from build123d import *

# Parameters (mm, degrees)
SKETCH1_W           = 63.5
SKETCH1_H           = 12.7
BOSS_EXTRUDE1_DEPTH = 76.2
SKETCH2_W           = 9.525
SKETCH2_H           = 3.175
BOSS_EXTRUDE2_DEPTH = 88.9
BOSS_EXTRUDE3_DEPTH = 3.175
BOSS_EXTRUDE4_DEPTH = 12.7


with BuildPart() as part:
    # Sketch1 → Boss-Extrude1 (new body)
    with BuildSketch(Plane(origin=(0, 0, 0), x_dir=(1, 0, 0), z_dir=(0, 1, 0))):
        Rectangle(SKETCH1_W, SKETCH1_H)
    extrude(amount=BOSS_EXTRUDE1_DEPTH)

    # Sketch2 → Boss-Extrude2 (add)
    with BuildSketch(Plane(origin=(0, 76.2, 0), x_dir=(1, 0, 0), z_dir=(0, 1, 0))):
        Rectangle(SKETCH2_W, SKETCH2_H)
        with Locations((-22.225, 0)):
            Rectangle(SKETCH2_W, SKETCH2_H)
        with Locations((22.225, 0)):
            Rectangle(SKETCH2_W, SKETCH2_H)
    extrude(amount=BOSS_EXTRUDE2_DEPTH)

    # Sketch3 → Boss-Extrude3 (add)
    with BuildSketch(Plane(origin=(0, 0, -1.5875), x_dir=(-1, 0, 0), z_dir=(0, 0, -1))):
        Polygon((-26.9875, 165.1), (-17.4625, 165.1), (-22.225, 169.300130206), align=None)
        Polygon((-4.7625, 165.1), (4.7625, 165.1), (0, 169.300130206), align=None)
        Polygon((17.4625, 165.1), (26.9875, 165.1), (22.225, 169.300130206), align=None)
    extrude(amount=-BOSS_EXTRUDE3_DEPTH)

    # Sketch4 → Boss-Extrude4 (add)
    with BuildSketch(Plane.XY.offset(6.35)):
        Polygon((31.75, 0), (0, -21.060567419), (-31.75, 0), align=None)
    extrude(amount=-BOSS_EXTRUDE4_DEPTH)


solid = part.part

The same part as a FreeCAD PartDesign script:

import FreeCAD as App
import Part
import Sketcher
from FreeCAD import Vector
Q = App.Units.Quantity


def add_polygon(sketch, points):
    """Adds a closed chain of lines whose ends are joined by coincident constraints."""
    first, n = sketch.GeometryCount, len(points)
    for a, b in zip(points, points[1:] + points[:1]):
        sketch.addGeometry(Part.LineSegment(App.Vector(*a, 0), App.Vector(*b, 0)), False)
    for i in range(n):
        sketch.addConstraint(Sketcher.Constraint("Coincident", first + i, 2, first + (i + 1) % n, 1))

doc = App.newDocument("Part")
body = doc.addObject("PartDesign::Body", "Body")

# Sketch on XZ plane
sketch1 = body.newObject("Sketcher::SketchObject", "Sketch")
sketch1.AttachmentSupport = (doc.getObject("XZ_Plane"), [""])
sketch1.MapMode = "FlatFace"
add_polygon(sketch1, [(-32, -6), (-32, 6), (32, 6), (32, -6)])  # lines 0-3
sketch1.addConstraint([
    Sketcher.Constraint("Vertical", 0),
    Sketcher.Constraint("Horizontal", 1),
    Sketcher.Constraint("Vertical", 2),
    Sketcher.Constraint("Horizontal", 3),
    Sketcher.Constraint("Symmetric", 0, 2, 2, 2, -1, 1),
    Sketcher.Constraint("DistanceX", 1, 1, 1, 2, Q("2.5 in")),
    Sketcher.Constraint("DistanceY", 0, 1, 0, 2, Q("0.5 in")),
])
pad1 = body.newObject("PartDesign::Pad", "Pad")
pad1.Profile = sketch1
pad1.Length = Q("3 in")
pad1.Reversed = True

# Sketch on XZ plane
sketch2 = body.newObject("Sketcher::SketchObject", "Sketch001")
sketch2.AttachmentSupport = (doc.getObject("XZ_Plane"), [""])
sketch2.MapMode = "FlatFace"
sketch2.AttachmentOffset = App.Placement(Vector(0, 0, -3 * 25.4), App.Rotation())
add_polygon(sketch2, [(-4.8, -1.6), (-4.8, 1.6), (4.8, 1.6), (4.8, -1.6)])  # lines 0-3
add_polygon(sketch2, [(-27, -1.6), (-27, 1.6), (-17.5, 1.6), (-17.5, -1.6)])  # lines 4-7
add_polygon(sketch2, [(17.5, -1.6), (17.5, 1.6), (27, 1.6), (27, -1.6)])  # lines 8-11
sketch2.addConstraint([
    Sketcher.Constraint("Vertical", 0),
    Sketcher.Constraint("Horizontal", 1),
    Sketcher.Constraint("Vertical", 2),
    Sketcher.Constraint("Horizontal", 3),
    Sketcher.Constraint("Vertical", 4),
    Sketcher.Constraint("Horizontal", 5),
    Sketcher.Constraint("Vertical", 6),
    Sketcher.Constraint("Horizontal", 7),
    Sketcher.Constraint("Vertical", 8),
    Sketcher.Constraint("Horizontal", 9),
    Sketcher.Constraint("Vertical", 10),
    Sketcher.Constraint("Horizontal", 11),
    Sketcher.Constraint("Symmetric", 0, 2, 2, 2, -1, 1),
    Sketcher.Constraint("Symmetric", 6, 2, 8, 2, -1, 1),
    Sketcher.Constraint("Symmetric", 4, 2, 10, 2, -1, 1),
    Sketcher.Constraint("Horizontal", 1, 2, 4, 2),
    Sketcher.Constraint("Horizontal", 3, 2, 6, 2),
    Sketcher.Constraint("Equal", 3, 5),
    Sketcher.Constraint("DistanceX", 5, 2, 0, 2, Q("0.5 in")),
    Sketcher.Constraint("DistanceX", 1, 1, 1, 2, Q("0.375 in")),
    Sketcher.Constraint("DistanceY", 0, 1, 0, 2, Q("0.125 in")),
])
pad2 = body.newObject("PartDesign::Pad", "Pad001")
pad2.Profile = sketch2
pad2.Length = Q("3.5 in")
pad2.Reversed = True

# Sketch on XY plane
sketch3 = body.newObject("Sketcher::SketchObject", "Sketch002")
sketch3.AttachmentSupport = (doc.getObject("XY_Plane"), [""])
sketch3.MapMode = "FlatFace"
sketch3.AttachmentOffset = App.Placement(Vector(0, 0, -0.0625 * 25.4), App.Rotation())
add_polygon(sketch3, [(27, 165), (17, 165), (22, 169)])  # lines 0-2
add_polygon(sketch3, [(5, 165), (-5, 165), (0, 169)])  # lines 3-5
add_polygon(sketch3, [(-17, 165), (-27, 165), (-22, 169)])  # lines 6-8
sketch3.addConstraint([
    Sketcher.Constraint("Horizontal", 0),
    Sketcher.Constraint("Horizontal", 3),
    Sketcher.Constraint("Horizontal", 6),
    Sketcher.Constraint("Symmetric", 2, 2, 6, 2, -2),
    Sketcher.Constraint("Symmetric", 1, 2, 7, 2, -2),
    Sketcher.Constraint("PointOnObject", 4, 2, -2),
    Sketcher.Constraint("Parallel", 1, 4),
    Sketcher.Constraint("Parallel", 2, 5),
    Sketcher.Constraint("Parallel", 4, 7),
    Sketcher.Constraint("Parallel", 5, 8),
    Sketcher.Constraint("Horizontal", 2, 2, 3, 2),
    Sketcher.Constraint("Horizontal", 1, 2, 4, 2),
    Sketcher.Constraint("DistanceY", -1, 1, 0, 2, Q("6.5 in")),
    Sketcher.Constraint("DistanceX", 5, 2, 0, 2, Q("0.5 in")),
    Sketcher.Constraint("Distance", 1, Q("0.25 in")),
    Sketcher.Constraint("DistanceX", 0, 2, 0, 1, Q("0.375 in")),
])
pad3 = body.newObject("PartDesign::Pad", "Pad002")
pad3.Profile = sketch3
pad3.Length = Q("0.125 in")

# Sketch on XY plane
sketch4 = body.newObject("Sketcher::SketchObject", "Sketch003")
sketch4.AttachmentSupport = (doc.getObject("XY_Plane"), [""])
sketch4.MapMode = "FlatFace"
sketch4.AttachmentOffset = App.Placement(Vector(0, 0, 0.25 * 25.4), App.Rotation())
add_polygon(sketch4, [(0, -21), (32, 0), (-32, 0)])  # lines 0-2
sketch4.addConstraint([
    Sketcher.Constraint("Horizontal", 1),
    Sketcher.Constraint("Symmetric", 0, 2, 1, 2, -1, 1),
    Sketcher.Constraint("PointOnObject", 2, 2, -2),
    Sketcher.Constraint("DistanceX", 1, 2, 1, 1, Q("2.5 in")),
    Sketcher.Constraint("Distance", 0, Q("1.5 in")),
])
pad4 = body.newObject("PartDesign::Pad", "Pad003")
pad4.Profile = sketch4
pad4.Length = Q("0.5 in")
pad4.Reversed = True

doc.recompute()
